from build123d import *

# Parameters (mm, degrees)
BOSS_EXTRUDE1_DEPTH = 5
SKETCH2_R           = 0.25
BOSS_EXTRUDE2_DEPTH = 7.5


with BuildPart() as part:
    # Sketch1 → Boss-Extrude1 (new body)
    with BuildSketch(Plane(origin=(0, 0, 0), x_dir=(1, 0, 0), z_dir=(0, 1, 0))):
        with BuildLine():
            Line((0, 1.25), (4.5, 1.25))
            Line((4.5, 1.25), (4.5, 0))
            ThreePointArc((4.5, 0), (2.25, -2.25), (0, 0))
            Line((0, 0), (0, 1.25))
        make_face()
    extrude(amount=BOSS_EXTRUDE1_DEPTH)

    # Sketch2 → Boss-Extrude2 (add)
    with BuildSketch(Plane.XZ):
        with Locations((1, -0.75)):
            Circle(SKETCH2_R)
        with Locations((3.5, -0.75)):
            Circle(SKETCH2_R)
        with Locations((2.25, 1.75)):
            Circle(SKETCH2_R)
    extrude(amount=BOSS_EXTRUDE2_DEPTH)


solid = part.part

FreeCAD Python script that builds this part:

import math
import FreeCAD as App
import Part
import Sketcher
from FreeCAD import Vector
Q = App.Units.Quantity

doc = App.newDocument("Part")
body = doc.addObject("PartDesign::Body", "Body")

sketch1 = body.newObject("Sketcher::SketchObject", "Sketch")
sketch1.AttachmentSupport = (doc.getObject("XZ_Plane"), [""])
sketch1.MapMode = "FlatFace"
sketch1.addGeometry(Part.LineSegment(Vector(4.5, -1.2, 0), Vector(0, -1.2, 0)), False)
sketch1.addGeometry(Part.LineSegment(Vector(0, -1.2, 0), Vector(0, 0, 0)), False)
sketch1.addGeometry(Part.ArcOfCircle(Part.Circle(Vector(2.2, 0, 0), Vector(0, 0, 1), 2.2), math.radians(0), math.radians(180)), False)
sketch1.addGeometry(Part.LineSegment(Vector(4.5, 0, 0), Vector(4.5, -1.2, 0)), False)
sketch1.addConstraint(Sketcher.Constraint("Coincident", 0, 2, 1, 1))
sketch1.addConstraint(Sketcher.Constraint("Tangent", 1, 2, 2, 2))
sketch1.addConstraint(Sketcher.Constraint("Tangent", 2, 1, 3, 1))
sketch1.addConstraint(Sketcher.Constraint("Coincident", 3, 2, 0, 1))
sketch1.addConstraint(Sketcher.Constraint("Horizontal", 0))
sketch1.addConstraint(Sketcher.Constraint("Vertical", 1))
sketch1.addConstraint(Sketcher.Constraint("Vertical", 3))
sketch1.addConstraint(Sketcher.Constraint("Coincident", 1, 2, -1, 1))
sketch1.addConstraint(Sketcher.Constraint("Radius", 2, Q("2.25 mm")))
sketch1.addConstraint(Sketcher.Constraint("DistanceY", 1, 1, 1, 2, Q("1.25 mm")))
pad1 = body.newObject("PartDesign::Pad", "Pad")
pad1.Profile = sketch1
pad1.Length = 5
pad1.Reversed = True

sketch2 = body.newObject("Sketcher::SketchObject", "Sketch001")
sketch2.AttachmentSupport = (doc.getObject("XZ_Plane"), [""])
sketch2.MapMode = "FlatFace"
sketch2.addGeometry(Part.Circle(Vector(1, -0.75, 0), Vector(0, 0, 1), 0.25), False)
sketch2.addGeometry(Part.Circle(Vector(3.5, -0.75, 0), Vector(0, 0, 1), 0.25), False)
sketch2.addGeometry(Part.Circle(Vector(2.25, 1.75, 0), Vector(0, 0, 1), 0.25), False)
sketch2.addConstraint(Sketcher.Constraint("Equal", 0, 1))
sketch2.addConstraint(Sketcher.Constraint("Equal", 1, 2))
sketch2.addConstraint(Sketcher.Constraint("Horizontal", 0, 3, 1, 3))
sketch2.addConstraint(Sketcher.Constraint("Diameter", 0, Q("0.5 mm")))
sketch2.addConstraint(Sketcher.Constraint("DistanceX", -1, 1, 0, 3, Q("1 mm")))
sketch2.addConstraint(Sketcher.Constraint("DistanceX", -1, 1, 1, 3, Q("3.5 mm")))
sketch2.addConstraint(Sketcher.Constraint("DistanceY", 0, 3, 2, 3, Q("2.5 mm")))
sketch2.addConstraint(Sketcher.Constraint("DistanceY", 0, 3, -1, 1, Q("0.75 mm")))
sketch2.addConstraint(Sketcher.Constraint("DistanceX", -1, 1, 2, 3, Q("2.25 mm")))
pad2 = body.newObject("PartDesign::Pad", "Pad001")
pad2.Profile = sketch2
pad2.Length = 7.5

doc.recompute()
